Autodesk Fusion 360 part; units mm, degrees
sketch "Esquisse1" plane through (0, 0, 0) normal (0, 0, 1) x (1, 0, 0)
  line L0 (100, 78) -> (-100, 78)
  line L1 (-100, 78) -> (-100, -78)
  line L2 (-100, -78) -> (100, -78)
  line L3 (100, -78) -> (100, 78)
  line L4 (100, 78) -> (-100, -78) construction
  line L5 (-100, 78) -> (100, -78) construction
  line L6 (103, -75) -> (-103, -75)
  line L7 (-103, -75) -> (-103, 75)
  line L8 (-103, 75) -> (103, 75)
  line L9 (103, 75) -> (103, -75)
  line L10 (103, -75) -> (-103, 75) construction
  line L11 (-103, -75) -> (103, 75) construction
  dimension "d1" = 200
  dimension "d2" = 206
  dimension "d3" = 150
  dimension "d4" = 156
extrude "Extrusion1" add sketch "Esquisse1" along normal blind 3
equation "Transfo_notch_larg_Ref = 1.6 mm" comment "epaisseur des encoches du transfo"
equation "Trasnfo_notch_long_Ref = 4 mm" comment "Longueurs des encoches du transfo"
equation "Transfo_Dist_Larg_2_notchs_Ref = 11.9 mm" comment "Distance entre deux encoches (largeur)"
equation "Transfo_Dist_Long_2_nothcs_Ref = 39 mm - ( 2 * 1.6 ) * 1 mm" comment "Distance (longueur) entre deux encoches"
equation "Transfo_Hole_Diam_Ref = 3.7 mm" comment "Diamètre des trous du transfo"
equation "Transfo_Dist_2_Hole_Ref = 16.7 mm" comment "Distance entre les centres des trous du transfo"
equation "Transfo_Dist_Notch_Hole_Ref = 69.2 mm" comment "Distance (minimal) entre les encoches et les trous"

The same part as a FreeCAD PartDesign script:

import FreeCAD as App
import Part
import Sketcher
from FreeCAD import Vector


def add_polygon(sketch, points):
    """Adds a closed chain of lines whose ends are joined by coincident constraints."""
    first, n = sketch.GeometryCount, len(points)
    for a, b in zip(points, points[1:] + points[:1]):
        sketch.addGeometry(Part.LineSegment(App.Vector(*a, 0), App.Vector(*b, 0)), False)
    for i in range(n):
        sketch.addConstraint(Sketcher.Constraint("Coincident", first + i, 2, first + (i + 1) % n, 1))

doc = App.newDocument("Part")
body = doc.addObject("PartDesign::Body", "Body")

# Sketch on XY plane
sketch1 = body.newObject("Sketcher::SketchObject", "Sketch")
sketch1.AttachmentSupport = (doc.getObject("XY_Plane"), [""])
sketch1.MapMode = "FlatFace"
add_polygon(sketch1, [(100, 75), (100, 78), (-100, 78), (-100, 75), (-103, 75), (-103, -75), (-100, -75), (-100, -78), (100, -78), (100, -75), (103, -75), (103, 75)])  # lines 0-11
sketch1.addConstraint(Sketcher.Constraint("Vertical", 0))
sketch1.addConstraint(Sketcher.Constraint("Horizontal", 1))
sketch1.addConstraint(Sketcher.Constraint("Vertical", 2))
sketch1.addConstraint(Sketcher.Constraint("Horizontal", 3))
sketch1.addConstraint(Sketcher.Constraint("Vertical", 4))
sketch1.addConstraint(Sketcher.Constraint("Horizontal", 5))
sketch1.addConstraint(Sketcher.Constraint("Vertical", 6))
sketch1.addConstraint(Sketcher.Constraint("Horizontal", 7))
sketch1.addConstraint(Sketcher.Constraint("Vertical", 8))
sketch1.addConstraint(Sketcher.Constraint("Horizontal", 9))
sketch1.addConstraint(Sketcher.Constraint("Vertical", 10))
sketch1.addConstraint(Sketcher.Constraint("Horizontal", 11))
sketch1.addConstraint(Sketcher.Constraint("Symmetric", 0, 2, 6, 2, -1, 1))
sketch1.addConstraint(Sketcher.Constraint("Symmetric", 2, 2, 8, 2, -1, 1))
sketch1.addConstraint(Sketcher.Constraint("Symmetric", 4, 2, 10, 2, -1, 1))
sketch1.addConstraint(Sketcher.Constraint("Symmetric", 5, 2, 8, 2, -2))
sketch1.addConstraint(Sketcher.Constraint("Equal", 11, 0))
sketch1.addConstraint(Sketcher.Constraint("DistanceX", 1, 2, 1, 1, 200.0))
sketch1.addConstraint(Sketcher.Constraint("DistanceY", 4, 2, 4, 1, 150.0))
sketch1.addConstraint(Sketcher.Constraint("DistanceY", 6, 2, 1, 2, 156.0))
pad1 = body.newObject("PartDesign::Pad", "Pad")
pad1.Profile = sketch1
pad1.Length = 3

doc.recompute()
